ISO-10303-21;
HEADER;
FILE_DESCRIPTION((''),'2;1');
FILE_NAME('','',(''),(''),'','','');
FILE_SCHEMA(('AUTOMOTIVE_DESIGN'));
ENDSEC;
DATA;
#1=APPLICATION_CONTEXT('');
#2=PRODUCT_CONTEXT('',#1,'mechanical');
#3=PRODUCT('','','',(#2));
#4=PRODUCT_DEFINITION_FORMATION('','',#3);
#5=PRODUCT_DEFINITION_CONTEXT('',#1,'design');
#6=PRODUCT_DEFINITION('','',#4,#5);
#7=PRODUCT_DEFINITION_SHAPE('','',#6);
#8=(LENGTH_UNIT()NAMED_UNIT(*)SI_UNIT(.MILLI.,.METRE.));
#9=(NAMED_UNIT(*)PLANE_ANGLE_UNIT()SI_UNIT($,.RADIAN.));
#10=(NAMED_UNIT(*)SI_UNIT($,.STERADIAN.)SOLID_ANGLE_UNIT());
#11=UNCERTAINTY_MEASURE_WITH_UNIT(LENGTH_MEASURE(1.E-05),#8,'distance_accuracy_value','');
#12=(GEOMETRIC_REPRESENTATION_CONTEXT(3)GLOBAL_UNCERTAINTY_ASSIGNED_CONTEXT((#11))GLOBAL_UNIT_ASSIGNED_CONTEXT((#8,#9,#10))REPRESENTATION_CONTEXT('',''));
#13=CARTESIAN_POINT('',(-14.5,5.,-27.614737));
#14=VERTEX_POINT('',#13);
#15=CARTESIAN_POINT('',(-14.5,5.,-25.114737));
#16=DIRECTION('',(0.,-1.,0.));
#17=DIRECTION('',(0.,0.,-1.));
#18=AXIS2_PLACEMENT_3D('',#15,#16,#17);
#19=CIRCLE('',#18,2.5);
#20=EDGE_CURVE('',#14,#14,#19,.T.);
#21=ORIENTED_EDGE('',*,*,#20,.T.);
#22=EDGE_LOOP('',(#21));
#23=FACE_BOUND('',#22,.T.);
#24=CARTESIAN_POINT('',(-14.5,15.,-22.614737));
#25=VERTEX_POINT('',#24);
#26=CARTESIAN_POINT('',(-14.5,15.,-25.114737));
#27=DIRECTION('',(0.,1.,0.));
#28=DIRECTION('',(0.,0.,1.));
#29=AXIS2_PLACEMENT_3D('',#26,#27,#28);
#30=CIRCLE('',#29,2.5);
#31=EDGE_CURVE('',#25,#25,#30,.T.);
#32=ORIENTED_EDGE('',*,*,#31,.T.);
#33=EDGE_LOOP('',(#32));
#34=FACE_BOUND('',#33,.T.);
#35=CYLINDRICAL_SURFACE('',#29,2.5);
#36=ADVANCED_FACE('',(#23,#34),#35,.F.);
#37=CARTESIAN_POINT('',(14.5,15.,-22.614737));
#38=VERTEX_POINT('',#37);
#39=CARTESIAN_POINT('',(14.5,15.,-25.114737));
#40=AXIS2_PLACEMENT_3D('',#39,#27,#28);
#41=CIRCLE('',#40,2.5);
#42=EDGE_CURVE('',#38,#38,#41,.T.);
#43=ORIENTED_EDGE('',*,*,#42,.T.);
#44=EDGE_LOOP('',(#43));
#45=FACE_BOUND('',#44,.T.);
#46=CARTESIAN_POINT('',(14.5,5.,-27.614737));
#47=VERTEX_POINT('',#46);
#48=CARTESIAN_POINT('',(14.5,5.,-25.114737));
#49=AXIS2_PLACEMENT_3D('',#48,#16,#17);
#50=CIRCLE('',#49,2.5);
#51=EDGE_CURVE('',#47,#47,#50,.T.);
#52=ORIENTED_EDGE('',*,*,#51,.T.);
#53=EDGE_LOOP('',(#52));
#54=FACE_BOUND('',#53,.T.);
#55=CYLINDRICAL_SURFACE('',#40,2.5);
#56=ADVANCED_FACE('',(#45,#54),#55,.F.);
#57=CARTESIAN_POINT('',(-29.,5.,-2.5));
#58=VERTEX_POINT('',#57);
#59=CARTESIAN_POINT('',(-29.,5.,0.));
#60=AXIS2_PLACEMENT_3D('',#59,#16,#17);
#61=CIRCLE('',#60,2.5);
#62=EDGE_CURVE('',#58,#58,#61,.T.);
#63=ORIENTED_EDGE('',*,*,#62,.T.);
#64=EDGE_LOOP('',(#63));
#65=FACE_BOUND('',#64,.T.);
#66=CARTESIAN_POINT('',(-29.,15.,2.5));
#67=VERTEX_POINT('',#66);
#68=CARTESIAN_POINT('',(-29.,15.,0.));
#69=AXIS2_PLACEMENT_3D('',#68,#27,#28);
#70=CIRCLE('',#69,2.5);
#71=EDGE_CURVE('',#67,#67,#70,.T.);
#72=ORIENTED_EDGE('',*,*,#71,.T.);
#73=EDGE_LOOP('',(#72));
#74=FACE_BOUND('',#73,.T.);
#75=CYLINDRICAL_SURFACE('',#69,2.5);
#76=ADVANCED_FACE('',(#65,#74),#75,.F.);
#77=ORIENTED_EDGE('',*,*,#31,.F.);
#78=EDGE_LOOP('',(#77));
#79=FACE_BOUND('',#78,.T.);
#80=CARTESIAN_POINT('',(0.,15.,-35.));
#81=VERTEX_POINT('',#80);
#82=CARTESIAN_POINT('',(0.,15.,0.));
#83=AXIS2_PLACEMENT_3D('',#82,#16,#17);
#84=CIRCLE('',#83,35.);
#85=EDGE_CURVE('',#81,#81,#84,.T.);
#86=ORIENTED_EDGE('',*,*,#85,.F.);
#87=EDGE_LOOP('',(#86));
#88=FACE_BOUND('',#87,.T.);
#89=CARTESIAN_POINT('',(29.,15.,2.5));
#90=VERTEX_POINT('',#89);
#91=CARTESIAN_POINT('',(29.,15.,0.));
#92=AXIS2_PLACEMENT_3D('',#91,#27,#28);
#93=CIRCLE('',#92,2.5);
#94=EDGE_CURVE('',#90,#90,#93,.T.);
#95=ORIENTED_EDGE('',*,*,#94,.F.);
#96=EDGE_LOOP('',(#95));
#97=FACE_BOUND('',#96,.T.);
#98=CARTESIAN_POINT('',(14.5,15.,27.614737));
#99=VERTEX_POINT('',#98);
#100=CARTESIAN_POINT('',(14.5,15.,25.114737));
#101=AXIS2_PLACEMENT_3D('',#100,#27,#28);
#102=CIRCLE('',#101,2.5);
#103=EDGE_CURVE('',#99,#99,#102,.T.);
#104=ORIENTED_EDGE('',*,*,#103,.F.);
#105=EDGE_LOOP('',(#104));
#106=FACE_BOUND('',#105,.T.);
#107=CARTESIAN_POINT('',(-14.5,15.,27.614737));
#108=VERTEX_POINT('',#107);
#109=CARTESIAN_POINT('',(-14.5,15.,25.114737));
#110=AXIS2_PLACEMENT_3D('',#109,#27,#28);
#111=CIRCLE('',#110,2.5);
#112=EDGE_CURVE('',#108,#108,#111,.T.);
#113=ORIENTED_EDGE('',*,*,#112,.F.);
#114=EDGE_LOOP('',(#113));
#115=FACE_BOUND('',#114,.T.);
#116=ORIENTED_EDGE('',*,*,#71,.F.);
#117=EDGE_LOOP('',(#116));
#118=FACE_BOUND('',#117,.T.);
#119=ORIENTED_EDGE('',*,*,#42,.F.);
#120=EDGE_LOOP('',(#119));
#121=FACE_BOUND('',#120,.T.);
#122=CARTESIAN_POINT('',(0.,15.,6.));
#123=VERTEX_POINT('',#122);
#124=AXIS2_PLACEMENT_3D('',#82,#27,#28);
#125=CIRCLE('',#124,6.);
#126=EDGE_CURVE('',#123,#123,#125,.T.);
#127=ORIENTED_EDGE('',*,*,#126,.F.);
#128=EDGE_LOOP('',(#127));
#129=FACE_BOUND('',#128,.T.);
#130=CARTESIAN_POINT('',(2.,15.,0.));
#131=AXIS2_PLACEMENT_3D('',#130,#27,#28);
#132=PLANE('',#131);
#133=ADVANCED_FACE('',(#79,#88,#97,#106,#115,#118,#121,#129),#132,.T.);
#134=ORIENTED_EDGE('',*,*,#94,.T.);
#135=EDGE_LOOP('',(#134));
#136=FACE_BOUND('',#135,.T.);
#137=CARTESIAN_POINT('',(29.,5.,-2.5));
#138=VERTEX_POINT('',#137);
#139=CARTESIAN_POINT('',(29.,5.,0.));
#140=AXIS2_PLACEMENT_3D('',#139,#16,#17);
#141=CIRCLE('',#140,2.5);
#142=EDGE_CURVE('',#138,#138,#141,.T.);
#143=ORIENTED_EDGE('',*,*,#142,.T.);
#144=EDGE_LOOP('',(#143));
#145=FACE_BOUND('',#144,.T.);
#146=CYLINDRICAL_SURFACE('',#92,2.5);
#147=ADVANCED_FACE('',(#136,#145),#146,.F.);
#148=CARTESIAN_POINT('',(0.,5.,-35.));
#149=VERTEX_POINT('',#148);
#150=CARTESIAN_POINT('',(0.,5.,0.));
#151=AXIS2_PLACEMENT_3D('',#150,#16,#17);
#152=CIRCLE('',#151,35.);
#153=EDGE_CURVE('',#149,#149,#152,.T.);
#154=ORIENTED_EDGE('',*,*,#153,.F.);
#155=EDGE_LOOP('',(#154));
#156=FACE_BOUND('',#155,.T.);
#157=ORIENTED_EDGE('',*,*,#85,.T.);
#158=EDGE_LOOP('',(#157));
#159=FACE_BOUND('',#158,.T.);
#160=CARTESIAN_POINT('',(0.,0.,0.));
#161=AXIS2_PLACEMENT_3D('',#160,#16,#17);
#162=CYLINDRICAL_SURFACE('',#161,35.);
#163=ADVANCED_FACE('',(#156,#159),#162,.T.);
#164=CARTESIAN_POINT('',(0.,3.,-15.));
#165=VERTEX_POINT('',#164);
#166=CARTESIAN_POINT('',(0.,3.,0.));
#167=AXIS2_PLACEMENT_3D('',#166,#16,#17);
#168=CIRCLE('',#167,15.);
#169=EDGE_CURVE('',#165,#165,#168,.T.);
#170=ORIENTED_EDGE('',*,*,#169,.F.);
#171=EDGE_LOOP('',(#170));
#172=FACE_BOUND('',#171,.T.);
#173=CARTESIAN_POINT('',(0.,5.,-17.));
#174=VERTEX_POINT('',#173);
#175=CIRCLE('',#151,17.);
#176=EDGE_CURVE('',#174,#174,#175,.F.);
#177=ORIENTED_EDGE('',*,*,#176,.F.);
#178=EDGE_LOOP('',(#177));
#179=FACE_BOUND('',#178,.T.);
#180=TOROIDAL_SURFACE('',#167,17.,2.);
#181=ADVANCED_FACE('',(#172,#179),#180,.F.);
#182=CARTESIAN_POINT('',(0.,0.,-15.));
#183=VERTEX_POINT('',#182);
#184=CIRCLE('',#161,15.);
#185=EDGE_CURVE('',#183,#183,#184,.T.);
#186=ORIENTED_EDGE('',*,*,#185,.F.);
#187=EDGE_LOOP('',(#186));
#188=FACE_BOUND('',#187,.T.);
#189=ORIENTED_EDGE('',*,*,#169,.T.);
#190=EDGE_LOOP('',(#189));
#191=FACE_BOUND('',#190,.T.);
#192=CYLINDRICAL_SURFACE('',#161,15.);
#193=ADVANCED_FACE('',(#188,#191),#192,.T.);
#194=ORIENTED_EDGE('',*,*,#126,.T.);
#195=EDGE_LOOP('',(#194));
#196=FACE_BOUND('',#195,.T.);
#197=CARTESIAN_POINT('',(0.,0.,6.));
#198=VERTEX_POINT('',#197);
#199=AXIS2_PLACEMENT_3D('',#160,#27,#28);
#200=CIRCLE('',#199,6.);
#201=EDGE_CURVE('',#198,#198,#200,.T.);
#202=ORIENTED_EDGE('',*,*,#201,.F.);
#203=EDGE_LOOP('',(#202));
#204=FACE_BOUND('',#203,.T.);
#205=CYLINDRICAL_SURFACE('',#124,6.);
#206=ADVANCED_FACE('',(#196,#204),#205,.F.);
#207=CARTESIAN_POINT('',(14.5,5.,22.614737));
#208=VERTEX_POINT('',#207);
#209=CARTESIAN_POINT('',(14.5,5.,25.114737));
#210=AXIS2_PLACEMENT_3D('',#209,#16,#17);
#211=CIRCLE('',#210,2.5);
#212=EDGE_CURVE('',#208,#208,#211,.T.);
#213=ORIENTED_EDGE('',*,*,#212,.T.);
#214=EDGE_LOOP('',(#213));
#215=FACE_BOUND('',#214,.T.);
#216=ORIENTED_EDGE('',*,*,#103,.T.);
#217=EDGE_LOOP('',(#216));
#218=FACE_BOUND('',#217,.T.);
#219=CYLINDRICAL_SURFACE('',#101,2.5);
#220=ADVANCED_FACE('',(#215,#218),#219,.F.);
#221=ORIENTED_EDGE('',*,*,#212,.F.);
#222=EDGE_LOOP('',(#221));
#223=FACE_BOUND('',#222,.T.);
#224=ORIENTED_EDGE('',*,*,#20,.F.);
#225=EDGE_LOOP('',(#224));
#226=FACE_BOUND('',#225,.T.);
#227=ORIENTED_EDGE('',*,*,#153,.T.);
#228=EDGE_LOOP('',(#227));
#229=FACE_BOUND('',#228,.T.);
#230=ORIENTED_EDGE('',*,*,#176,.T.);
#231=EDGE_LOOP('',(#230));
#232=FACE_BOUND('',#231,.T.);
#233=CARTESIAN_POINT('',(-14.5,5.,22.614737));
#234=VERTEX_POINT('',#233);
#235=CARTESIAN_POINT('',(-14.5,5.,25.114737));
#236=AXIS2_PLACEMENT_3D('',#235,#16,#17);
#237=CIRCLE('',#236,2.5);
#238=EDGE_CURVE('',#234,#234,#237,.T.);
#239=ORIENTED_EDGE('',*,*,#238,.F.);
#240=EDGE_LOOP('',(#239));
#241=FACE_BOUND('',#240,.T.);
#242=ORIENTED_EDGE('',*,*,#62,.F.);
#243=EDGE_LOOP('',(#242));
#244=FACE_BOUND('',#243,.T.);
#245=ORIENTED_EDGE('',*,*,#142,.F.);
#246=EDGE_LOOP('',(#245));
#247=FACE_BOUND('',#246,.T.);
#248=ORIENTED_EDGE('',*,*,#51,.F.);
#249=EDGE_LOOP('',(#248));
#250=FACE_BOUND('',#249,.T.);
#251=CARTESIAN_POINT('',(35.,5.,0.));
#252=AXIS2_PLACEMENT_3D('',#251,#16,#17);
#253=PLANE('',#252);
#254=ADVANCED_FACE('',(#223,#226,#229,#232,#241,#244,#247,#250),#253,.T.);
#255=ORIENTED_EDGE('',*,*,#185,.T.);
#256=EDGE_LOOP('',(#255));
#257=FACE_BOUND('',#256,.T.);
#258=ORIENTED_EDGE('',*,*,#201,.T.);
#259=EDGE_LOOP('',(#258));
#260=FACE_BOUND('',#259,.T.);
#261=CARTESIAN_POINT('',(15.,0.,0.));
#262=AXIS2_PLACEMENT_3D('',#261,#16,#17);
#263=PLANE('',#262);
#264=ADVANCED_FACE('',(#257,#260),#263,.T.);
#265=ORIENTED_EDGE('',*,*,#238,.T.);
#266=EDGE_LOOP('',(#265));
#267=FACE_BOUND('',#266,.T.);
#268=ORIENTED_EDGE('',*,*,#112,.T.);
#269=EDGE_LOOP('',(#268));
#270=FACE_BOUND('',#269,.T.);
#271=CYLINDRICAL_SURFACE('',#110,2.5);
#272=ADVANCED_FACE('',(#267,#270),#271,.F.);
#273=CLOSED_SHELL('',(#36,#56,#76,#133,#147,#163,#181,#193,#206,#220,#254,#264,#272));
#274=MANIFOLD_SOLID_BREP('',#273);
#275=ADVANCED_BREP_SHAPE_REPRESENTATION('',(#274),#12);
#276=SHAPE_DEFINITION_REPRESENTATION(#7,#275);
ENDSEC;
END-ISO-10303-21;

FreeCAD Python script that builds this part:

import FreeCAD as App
import Part
import Sketcher

V = App.Vector


def edges_at(feature, points):
    """Names of the edges that pass closest to the given points."""
    edges = feature.Shape.Edges
    near = lambda p: min(range(len(edges)), key=lambda i: edges[i].distToShape(Part.Vertex(*p))[0])
    return sorted({f"Edge{near(p) + 1}" for p in points})

doc = App.newDocument("Part")
body = doc.addObject("PartDesign::Body", "Body")

# Sketch on XY plane
sketch1 = body.newObject("Sketcher::SketchObject", "Sketch")
sketch1.AttachmentSupport = (doc.getObject("XY_Plane"), [""])
sketch1.MapMode = "FlatFace"
sketch1.addGeometry([
    Part.LineSegment(V(2, 15, 0), V(2, 0, 0)),  # 0
    Part.LineSegment(V(2, 0, 0), V(15, 0, 0)),  # 1
    Part.LineSegment(V(15, 0, 0), V(15, 5, 0)),  # 2
    Part.LineSegment(V(15, 5, 0), V(35, 5, 0)),  # 3
    Part.LineSegment(V(35, 5, 0), V(35, 15, 0)),  # 4
    Part.LineSegment(V(35, 15, 0), V(2, 15, 0)),  # 5
], False)
sketch1.addConstraint([
    Sketcher.Constraint("Coincident", 0, 2, 1, 1),
    Sketcher.Constraint("Coincident", 1, 2, 2, 1),
    Sketcher.Constraint("Coincident", 2, 2, 3, 1),
    Sketcher.Constraint("Coincident", 3, 2, 4, 1),
    Sketcher.Constraint("Coincident", 4, 2, 5, 1),
    Sketcher.Constraint("Coincident", 5, 2, 0, 1),
    Sketcher.Constraint("Vertical", 0),
    Sketcher.Constraint("Horizontal", 1),
    Sketcher.Constraint("Vertical", 2),
    Sketcher.Constraint("Horizontal", 3),
    Sketcher.Constraint("Vertical", 4),
    Sketcher.Constraint("Horizontal", 5),
    Sketcher.Constraint("PointOnObject", 0, 2, -1),
    Sketcher.Constraint("DistanceX", 1, 1, 1, 2, 13.0),
    Sketcher.Constraint("DistanceX", 3, 1, 3, 2, 20.0),
    Sketcher.Constraint("DistanceY", 0, 2, 0, 1, 15.0),
    Sketcher.Constraint("DistanceY", 2, 1, 2, 2, 5.0),
    Sketcher.Constraint("DistanceX", -1, 1, 0, 2, 2.0),
])
revolution = body.newObject("PartDesign::Revolution", "Revolution")
revolution.Profile = sketch1
revolution.ReferenceAxis = (sketch1, ["V_Axis"])
revolution.Angle = 360
doc.recompute()

fillet = body.newObject("PartDesign::Fillet", "Fillet")
fillet.Base = (revolution, edges_at(revolution, [(0, 5, 15)]))
fillet.Radius = 2

# Sketch on XZ plane
sketch2 = body.newObject("Sketcher::SketchObject", "Sketch001")
sketch2.AttachmentSupport = (doc.getObject("XZ_Plane"), [""])
sketch2.MapMode = "FlatFace"
sketch2.AttachmentOffset = App.Placement(V(0, 0, -15), App.Rotation())
sketch2.addGeometry(Part.Circle(V(29, 0, 0), V(0, 0, 1), 2.5), False)
sketch2.addConstraint([
    Sketcher.Constraint("PointOnObject", 0, 3, -1),
    Sketcher.Constraint("Diameter", 0, 5.0),
    Sketcher.Constraint("DistanceX", -1, 1, 0, 3, 29.0),
])
doc.recompute()
hole = body.newObject("PartDesign::Hole", "Hole")
hole.Profile = sketch2
hole.ThreadType = "None"
hole.Diameter = 5
hole.DepthType = "ThroughAll"
hole.Reversed = True

# Sketch on XZ plane
sketch3 = body.newObject("Sketcher::SketchObject", "Sketch002")
sketch3.AttachmentSupport = (doc.getObject("XZ_Plane"), [""])
sketch3.MapMode = "FlatFace"
sketch3.AttachmentOffset = App.Placement(V(0, 0, -15), App.Rotation())
sketch3.addGeometry(Part.Circle(V(0, 0, 0), V(0, 0, 1), 6), False)
sketch3.addConstraint([
    Sketcher.Constraint("Coincident", 0, 3, -1, 1),
    Sketcher.Constraint("Diameter", 0, 12.0),
])
doc.recompute()
hole2 = body.newObject("PartDesign::Hole", "Hole001")
hole2.Profile = sketch3
hole2.ThreadType = "None"
hole2.Diameter = 12
hole2.DepthType = "ThroughAll"
hole2.Reversed = True
doc.recompute()

polarpattern = body.newObject("PartDesign::PolarPattern", "PolarPattern")
polarpattern.Originals = [hole]
polarpattern.Axis = (doc.getObject("Y_Axis"), [""])
polarpattern.Angle = 360
polarpattern.Occurrences = 6
body.Tip = polarpattern

doc.recompute()
